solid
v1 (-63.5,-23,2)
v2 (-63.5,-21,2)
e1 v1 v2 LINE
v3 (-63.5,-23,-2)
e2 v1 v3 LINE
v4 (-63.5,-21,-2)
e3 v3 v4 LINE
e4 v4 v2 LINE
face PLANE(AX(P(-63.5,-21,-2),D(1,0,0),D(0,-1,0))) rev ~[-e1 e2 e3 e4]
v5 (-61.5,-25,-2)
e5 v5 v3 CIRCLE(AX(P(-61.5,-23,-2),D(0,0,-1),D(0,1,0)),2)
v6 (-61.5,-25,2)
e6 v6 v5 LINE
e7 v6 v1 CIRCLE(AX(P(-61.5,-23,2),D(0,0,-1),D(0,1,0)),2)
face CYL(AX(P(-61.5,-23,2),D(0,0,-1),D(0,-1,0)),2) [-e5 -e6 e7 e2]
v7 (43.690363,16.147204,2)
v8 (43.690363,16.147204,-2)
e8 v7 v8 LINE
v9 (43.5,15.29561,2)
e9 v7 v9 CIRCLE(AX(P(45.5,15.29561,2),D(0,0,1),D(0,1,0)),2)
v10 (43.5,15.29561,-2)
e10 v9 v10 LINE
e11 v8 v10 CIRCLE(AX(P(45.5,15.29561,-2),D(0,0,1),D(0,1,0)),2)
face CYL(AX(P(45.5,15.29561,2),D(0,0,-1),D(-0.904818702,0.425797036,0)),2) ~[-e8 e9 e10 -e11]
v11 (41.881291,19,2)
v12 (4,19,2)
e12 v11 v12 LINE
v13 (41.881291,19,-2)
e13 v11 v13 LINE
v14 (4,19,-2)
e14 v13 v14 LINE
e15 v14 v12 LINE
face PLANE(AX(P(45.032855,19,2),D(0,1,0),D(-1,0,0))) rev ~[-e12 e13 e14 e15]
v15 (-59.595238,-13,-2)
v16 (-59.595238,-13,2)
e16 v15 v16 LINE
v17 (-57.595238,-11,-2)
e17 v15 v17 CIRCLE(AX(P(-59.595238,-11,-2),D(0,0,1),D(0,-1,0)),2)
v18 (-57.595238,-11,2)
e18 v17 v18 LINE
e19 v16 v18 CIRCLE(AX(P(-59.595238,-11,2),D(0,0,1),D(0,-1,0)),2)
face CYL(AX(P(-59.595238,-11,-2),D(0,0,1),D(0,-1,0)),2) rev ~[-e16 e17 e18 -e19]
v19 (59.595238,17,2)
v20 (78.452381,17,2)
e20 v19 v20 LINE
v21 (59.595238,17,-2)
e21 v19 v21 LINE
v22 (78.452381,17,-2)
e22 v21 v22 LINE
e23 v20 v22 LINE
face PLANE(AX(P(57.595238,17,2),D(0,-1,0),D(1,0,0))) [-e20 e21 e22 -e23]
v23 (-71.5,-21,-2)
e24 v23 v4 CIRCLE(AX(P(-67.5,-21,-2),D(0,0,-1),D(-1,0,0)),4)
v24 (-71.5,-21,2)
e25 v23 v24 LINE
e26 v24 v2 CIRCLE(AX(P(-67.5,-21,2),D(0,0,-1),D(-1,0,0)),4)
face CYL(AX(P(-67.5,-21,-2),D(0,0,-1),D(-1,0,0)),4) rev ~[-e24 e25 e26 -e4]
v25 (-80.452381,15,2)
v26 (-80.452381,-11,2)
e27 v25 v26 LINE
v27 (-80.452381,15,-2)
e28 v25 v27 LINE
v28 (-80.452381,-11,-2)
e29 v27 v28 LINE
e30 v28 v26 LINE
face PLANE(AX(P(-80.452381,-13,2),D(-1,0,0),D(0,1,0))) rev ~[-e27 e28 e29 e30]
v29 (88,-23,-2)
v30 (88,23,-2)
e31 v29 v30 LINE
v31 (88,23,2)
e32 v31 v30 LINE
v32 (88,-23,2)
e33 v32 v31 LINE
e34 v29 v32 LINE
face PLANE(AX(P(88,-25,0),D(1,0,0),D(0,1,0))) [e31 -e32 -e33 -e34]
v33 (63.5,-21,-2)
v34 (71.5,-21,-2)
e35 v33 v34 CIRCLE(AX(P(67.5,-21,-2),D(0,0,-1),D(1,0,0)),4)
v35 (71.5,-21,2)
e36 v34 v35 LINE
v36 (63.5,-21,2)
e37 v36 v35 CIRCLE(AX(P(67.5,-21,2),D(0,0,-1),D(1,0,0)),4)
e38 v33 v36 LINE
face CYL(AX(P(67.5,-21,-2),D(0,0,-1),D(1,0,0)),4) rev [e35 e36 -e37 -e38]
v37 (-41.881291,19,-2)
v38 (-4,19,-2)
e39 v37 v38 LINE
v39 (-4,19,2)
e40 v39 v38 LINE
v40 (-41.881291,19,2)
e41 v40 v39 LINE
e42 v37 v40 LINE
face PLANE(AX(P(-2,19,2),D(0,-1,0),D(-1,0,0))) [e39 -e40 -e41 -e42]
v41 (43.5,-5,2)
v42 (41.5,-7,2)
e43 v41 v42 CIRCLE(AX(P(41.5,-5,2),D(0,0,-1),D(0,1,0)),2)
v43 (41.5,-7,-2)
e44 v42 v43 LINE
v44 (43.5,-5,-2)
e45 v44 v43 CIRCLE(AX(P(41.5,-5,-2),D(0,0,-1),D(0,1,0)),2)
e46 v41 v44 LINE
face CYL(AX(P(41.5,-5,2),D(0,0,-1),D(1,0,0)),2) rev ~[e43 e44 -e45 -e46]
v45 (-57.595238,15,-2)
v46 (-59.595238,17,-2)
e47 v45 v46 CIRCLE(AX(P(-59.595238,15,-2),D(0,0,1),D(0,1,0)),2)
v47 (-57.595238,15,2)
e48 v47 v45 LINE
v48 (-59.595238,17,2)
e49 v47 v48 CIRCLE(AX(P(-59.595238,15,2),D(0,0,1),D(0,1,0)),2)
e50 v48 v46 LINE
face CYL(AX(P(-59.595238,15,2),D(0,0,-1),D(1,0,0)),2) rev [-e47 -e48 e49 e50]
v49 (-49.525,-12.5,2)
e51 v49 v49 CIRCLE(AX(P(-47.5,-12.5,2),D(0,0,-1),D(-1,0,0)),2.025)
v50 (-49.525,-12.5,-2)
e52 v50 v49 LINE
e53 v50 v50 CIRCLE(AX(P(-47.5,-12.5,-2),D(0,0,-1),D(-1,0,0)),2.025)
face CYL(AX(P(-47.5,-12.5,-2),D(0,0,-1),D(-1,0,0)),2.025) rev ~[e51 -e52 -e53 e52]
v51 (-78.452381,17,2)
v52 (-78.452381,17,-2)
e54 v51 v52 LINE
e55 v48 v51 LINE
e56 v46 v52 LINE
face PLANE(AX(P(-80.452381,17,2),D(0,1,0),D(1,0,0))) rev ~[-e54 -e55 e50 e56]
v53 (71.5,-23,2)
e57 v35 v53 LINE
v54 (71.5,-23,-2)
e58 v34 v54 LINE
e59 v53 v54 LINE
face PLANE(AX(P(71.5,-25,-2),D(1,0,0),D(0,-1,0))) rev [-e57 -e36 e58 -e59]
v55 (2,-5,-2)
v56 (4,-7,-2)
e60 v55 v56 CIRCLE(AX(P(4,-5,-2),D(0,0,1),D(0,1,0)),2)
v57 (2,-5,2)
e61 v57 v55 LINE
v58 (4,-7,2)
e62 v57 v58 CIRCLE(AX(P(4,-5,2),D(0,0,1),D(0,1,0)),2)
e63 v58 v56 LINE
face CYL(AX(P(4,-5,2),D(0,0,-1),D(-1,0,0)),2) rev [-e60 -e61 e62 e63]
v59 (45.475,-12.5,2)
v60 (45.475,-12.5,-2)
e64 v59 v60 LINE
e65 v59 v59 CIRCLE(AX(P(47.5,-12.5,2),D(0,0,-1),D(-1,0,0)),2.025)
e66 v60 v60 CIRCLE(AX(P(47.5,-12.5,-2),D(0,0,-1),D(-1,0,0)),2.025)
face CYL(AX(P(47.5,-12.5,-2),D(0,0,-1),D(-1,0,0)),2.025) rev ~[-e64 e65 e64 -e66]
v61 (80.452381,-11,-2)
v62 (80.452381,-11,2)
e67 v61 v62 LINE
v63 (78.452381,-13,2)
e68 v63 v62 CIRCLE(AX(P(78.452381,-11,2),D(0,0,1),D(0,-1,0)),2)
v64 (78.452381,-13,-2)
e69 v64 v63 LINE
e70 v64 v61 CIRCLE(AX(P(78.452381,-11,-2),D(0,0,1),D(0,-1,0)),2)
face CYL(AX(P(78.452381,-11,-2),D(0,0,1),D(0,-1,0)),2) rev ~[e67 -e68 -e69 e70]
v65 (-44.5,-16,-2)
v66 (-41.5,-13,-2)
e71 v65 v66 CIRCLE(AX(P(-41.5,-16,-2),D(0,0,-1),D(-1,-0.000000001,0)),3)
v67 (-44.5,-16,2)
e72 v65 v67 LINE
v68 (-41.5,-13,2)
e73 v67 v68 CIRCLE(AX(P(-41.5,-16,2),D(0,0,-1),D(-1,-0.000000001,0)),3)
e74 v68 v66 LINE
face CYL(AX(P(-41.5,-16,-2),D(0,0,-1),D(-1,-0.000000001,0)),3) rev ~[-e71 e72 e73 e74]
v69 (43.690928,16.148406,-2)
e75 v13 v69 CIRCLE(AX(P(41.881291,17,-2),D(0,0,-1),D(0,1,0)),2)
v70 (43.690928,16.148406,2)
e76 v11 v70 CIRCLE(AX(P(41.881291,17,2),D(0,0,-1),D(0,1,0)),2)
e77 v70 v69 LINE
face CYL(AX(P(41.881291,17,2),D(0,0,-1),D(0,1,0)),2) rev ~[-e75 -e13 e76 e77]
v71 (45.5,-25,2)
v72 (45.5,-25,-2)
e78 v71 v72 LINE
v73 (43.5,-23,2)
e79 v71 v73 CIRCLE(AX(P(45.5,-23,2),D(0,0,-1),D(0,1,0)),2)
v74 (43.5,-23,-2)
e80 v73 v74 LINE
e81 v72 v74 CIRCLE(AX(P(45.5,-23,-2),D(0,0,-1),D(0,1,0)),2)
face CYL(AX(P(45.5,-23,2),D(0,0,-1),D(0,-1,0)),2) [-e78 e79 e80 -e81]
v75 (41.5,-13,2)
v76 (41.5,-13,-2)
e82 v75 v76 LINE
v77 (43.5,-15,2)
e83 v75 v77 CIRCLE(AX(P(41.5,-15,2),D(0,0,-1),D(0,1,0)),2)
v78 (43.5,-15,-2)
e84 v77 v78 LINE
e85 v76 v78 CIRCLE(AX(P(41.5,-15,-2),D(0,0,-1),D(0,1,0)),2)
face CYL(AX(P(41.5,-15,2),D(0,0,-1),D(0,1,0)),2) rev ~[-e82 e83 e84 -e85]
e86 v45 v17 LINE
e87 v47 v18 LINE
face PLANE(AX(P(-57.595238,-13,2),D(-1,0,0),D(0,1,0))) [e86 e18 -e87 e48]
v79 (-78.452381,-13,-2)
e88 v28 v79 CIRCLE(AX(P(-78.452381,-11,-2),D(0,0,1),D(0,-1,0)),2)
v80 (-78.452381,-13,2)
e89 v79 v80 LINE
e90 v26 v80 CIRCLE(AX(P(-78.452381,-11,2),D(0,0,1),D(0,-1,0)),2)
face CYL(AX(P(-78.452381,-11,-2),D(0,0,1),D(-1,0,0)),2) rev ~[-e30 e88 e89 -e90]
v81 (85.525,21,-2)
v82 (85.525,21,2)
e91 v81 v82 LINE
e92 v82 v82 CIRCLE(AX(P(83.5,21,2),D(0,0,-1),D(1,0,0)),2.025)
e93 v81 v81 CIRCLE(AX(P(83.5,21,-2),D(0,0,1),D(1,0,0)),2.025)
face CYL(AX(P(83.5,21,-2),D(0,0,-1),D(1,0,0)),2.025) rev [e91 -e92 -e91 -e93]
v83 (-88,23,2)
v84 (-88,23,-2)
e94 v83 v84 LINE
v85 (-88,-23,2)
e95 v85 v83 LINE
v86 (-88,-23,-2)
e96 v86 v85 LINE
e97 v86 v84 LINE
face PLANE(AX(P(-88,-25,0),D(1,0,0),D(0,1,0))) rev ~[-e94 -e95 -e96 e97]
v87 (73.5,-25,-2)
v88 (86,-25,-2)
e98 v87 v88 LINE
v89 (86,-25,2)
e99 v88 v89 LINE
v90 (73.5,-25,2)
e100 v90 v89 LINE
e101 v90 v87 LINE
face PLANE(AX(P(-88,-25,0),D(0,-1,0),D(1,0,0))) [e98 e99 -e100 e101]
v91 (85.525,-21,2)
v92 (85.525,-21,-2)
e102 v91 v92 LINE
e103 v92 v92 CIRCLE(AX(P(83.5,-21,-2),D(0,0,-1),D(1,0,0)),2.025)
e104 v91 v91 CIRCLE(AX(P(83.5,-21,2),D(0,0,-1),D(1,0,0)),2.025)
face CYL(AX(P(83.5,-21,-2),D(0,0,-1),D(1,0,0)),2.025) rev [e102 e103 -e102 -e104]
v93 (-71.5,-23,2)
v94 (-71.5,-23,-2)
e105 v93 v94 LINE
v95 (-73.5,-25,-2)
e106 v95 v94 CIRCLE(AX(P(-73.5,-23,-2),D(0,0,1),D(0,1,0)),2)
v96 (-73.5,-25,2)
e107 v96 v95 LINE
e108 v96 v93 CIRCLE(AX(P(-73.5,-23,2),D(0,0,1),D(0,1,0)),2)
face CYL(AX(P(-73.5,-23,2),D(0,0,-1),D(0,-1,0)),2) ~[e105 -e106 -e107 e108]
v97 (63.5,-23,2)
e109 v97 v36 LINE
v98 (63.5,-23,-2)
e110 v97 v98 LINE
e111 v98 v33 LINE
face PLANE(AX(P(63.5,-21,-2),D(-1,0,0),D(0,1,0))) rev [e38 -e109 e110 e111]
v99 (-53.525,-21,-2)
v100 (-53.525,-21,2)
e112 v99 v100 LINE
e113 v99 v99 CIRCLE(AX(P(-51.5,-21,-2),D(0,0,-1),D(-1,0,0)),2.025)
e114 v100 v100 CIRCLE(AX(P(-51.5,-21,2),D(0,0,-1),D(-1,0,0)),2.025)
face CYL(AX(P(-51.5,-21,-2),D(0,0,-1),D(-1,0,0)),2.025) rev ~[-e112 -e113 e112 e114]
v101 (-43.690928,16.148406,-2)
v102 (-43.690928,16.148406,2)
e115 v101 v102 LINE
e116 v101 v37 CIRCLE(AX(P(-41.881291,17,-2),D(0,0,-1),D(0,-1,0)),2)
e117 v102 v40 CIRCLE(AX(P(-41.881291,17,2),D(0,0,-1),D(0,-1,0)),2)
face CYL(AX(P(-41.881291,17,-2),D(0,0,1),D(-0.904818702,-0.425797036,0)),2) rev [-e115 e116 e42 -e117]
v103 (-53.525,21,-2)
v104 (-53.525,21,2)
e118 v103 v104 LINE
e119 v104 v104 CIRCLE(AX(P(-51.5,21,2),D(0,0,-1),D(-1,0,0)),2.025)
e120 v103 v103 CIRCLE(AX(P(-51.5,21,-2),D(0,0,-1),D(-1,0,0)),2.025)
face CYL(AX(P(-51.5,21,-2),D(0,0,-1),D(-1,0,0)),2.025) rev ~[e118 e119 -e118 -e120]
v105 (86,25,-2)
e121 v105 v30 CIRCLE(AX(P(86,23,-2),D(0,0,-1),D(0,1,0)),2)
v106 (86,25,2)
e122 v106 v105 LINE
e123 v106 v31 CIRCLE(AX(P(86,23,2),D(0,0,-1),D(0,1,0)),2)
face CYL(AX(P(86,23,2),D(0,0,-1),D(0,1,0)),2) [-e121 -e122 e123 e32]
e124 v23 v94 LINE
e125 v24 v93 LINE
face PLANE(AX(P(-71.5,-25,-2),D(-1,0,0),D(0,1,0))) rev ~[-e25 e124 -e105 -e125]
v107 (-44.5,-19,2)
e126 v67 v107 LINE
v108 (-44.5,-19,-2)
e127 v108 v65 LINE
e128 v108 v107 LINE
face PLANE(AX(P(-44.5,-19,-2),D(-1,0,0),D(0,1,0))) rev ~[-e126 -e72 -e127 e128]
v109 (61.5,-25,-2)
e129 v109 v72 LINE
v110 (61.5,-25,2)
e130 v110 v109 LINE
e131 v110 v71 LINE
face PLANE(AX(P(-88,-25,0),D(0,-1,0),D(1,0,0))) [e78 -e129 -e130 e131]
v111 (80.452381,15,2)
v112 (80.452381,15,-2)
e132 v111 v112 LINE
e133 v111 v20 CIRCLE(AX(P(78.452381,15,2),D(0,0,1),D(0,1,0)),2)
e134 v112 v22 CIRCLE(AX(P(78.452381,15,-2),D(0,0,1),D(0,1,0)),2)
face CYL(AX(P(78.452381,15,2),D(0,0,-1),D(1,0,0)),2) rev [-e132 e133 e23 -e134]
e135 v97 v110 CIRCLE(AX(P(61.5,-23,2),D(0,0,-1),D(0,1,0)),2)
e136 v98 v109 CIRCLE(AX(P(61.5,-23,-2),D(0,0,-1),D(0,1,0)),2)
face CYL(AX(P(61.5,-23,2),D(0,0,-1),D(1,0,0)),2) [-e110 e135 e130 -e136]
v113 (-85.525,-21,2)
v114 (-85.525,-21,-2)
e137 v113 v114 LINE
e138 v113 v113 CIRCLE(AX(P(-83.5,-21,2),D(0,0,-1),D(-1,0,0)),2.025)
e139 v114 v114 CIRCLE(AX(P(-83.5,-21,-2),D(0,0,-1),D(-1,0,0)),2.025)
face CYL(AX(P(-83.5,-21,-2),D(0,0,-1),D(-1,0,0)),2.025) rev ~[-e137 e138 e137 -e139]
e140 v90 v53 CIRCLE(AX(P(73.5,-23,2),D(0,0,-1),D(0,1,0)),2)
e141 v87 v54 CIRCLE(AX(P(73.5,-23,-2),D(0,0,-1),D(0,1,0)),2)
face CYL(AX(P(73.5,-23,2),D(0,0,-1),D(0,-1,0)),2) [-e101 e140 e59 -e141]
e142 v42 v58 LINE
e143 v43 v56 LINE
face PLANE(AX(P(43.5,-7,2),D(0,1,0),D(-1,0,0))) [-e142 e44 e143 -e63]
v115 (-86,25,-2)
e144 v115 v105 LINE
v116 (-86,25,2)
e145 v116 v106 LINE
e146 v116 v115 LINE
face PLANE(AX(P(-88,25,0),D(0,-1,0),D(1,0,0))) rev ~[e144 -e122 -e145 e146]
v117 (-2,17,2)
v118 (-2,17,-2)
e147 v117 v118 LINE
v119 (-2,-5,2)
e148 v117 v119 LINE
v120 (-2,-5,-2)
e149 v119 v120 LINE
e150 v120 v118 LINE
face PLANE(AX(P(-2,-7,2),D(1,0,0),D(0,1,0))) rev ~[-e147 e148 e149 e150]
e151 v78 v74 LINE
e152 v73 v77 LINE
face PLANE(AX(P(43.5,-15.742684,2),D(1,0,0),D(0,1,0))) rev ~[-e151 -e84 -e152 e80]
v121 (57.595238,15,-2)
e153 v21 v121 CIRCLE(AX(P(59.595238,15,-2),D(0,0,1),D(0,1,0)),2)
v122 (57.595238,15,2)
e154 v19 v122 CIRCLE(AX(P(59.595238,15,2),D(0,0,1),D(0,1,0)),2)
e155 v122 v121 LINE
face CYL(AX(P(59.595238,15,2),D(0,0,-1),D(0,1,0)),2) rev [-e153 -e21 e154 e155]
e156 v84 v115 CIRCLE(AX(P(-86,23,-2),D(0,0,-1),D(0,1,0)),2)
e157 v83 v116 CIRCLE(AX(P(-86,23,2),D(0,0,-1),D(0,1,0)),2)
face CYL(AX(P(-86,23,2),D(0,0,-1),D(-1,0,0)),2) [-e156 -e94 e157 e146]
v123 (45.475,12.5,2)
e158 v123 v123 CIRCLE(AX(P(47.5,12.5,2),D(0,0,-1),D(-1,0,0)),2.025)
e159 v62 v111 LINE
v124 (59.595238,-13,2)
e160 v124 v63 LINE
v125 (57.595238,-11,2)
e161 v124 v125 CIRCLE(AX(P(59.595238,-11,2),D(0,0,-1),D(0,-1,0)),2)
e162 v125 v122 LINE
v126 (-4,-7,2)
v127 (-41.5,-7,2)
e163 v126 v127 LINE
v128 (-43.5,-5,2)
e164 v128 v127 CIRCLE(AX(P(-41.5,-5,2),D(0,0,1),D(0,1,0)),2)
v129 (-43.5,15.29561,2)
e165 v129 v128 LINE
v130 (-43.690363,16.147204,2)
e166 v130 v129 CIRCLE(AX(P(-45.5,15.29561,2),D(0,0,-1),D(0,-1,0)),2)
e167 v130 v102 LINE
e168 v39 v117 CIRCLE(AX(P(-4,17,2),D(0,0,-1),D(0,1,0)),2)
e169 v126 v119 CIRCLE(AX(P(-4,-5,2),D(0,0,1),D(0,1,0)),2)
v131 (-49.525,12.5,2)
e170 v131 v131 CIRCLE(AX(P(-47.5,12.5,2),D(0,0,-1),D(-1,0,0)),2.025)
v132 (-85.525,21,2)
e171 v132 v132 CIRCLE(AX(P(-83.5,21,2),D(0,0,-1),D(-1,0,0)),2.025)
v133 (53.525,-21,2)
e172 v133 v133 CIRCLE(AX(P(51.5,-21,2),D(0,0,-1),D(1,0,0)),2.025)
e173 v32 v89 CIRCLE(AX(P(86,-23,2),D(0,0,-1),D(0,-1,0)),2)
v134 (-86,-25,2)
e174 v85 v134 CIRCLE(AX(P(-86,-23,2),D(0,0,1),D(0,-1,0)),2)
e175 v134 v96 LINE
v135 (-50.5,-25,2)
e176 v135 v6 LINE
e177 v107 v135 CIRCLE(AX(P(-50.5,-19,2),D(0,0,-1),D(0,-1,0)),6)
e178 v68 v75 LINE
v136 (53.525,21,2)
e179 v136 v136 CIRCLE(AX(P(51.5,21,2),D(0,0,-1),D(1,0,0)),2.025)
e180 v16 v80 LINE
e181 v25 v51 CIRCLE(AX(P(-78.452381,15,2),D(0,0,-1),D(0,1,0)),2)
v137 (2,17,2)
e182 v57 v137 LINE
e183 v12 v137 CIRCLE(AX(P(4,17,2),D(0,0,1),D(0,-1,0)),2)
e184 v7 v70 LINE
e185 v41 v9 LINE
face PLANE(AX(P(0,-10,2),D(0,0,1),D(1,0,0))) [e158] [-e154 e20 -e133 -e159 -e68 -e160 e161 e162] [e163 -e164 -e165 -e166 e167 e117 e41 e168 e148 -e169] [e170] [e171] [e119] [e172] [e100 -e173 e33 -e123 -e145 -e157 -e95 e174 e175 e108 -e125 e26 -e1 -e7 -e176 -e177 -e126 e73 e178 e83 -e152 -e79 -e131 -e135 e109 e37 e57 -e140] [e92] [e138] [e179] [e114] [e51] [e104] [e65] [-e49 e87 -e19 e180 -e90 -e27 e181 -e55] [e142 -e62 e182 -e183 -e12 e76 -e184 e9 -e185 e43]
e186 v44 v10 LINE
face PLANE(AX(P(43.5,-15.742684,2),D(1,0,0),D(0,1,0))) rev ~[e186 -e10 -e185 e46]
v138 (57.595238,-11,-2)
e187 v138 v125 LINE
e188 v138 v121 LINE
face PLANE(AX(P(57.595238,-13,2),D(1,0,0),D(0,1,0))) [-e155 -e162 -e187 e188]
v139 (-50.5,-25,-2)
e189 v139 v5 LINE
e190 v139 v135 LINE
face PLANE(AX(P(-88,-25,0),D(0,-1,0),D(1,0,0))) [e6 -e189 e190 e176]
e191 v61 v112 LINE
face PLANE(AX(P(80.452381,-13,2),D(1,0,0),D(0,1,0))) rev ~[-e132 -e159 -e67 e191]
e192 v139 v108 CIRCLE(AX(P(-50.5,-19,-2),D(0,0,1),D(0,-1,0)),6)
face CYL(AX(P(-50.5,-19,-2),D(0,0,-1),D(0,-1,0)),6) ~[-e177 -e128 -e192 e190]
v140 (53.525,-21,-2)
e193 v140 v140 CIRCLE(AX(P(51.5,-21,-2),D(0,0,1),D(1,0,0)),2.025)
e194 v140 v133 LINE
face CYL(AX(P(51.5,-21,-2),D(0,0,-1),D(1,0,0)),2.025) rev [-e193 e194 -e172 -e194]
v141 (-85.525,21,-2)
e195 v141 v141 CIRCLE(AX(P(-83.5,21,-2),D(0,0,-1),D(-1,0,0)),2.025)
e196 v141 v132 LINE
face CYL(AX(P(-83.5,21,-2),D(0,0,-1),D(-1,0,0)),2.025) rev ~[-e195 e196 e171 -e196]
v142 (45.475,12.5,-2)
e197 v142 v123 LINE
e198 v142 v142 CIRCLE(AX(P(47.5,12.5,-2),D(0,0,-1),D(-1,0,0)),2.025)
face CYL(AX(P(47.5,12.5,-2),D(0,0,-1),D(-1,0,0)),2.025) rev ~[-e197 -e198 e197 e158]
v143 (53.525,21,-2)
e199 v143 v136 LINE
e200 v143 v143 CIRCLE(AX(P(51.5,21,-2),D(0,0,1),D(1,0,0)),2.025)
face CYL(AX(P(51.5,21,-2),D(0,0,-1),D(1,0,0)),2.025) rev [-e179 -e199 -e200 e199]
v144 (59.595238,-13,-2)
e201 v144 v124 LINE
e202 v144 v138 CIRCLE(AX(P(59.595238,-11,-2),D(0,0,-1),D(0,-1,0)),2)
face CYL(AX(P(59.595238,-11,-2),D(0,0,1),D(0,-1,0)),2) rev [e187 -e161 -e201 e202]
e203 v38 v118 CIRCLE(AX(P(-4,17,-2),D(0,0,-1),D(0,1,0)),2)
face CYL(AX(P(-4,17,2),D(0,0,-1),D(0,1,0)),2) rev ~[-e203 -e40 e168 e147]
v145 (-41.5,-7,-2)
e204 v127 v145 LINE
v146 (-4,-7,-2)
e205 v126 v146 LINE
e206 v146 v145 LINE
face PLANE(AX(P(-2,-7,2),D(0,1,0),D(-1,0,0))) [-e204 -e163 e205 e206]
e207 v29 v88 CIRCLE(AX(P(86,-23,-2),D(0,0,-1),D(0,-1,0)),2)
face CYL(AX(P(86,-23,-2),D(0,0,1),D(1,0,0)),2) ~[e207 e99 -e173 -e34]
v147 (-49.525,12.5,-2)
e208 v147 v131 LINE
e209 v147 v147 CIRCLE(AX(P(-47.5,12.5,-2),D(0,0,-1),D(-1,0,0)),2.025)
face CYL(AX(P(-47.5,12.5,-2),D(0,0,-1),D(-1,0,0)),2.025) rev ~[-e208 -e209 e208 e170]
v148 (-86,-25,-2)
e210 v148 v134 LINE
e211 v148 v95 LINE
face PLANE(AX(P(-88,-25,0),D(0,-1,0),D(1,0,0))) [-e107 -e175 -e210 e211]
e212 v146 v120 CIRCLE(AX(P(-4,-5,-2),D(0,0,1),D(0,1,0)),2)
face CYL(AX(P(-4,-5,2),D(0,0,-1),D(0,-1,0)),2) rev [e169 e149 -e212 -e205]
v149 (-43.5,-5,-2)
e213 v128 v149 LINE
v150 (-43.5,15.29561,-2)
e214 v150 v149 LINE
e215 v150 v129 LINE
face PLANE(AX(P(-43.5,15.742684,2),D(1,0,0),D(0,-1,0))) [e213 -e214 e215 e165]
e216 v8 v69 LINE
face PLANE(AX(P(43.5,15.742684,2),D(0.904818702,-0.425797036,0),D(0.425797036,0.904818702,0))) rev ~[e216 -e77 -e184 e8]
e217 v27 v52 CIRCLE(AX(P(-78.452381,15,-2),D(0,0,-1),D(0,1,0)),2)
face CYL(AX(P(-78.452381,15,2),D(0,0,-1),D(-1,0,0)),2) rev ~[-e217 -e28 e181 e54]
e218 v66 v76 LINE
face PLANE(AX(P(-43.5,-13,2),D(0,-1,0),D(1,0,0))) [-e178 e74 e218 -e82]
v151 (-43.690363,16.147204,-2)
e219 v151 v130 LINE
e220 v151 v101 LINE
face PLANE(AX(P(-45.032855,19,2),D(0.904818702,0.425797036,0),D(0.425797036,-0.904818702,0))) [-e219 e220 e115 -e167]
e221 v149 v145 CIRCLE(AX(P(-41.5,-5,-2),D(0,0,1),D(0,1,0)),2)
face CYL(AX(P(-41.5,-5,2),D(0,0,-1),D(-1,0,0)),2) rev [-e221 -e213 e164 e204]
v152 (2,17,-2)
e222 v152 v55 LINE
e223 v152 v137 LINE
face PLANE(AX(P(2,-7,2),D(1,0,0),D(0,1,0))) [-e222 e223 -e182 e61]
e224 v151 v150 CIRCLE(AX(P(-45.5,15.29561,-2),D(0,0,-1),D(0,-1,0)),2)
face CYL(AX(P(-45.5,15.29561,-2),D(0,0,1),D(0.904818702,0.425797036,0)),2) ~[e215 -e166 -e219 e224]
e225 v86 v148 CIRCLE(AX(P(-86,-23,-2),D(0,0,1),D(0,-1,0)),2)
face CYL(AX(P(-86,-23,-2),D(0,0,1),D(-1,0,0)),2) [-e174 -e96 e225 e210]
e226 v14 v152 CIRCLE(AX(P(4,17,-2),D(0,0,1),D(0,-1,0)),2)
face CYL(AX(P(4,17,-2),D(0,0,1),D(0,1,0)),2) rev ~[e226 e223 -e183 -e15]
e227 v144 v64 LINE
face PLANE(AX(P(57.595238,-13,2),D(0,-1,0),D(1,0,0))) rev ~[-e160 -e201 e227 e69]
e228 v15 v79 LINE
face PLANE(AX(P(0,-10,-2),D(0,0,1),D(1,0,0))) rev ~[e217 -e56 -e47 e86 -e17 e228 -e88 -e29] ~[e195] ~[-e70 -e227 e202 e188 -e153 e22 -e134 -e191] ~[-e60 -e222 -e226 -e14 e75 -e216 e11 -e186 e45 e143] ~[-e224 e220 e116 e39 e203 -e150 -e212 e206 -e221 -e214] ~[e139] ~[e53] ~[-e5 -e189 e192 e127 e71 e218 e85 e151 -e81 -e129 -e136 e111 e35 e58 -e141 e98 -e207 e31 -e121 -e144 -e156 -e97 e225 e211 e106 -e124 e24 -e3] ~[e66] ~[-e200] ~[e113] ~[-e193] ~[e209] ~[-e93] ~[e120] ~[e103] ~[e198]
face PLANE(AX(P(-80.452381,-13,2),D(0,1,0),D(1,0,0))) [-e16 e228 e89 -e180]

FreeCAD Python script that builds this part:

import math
import FreeCAD as App
import Part
import Sketcher
from FreeCAD import Vector


def edges_at(feature, points):
    """Names of the edges that pass closest to the given points."""
    edges = feature.Shape.Edges
    near = lambda p: min(range(len(edges)), key=lambda i: edges[i].distToShape(Part.Vertex(*p))[0])
    return sorted({f"Edge{near(p) + 1}" for p in points})


def add_polygon(sketch, points):
    """Adds a closed chain of lines whose ends are joined by coincident constraints."""
    first, n = sketch.GeometryCount, len(points)
    for a, b in zip(points, points[1:] + points[:1]):
        sketch.addGeometry(Part.LineSegment(App.Vector(*a, 0), App.Vector(*b, 0)), False)
    for i in range(n):
        sketch.addConstraint(Sketcher.Constraint("Coincident", first + i, 2, first + (i + 1) % n, 1))

doc = App.newDocument("Part")
body = doc.addObject("PartDesign::Body", "Body")

# Sketch on XY plane
sketch1 = body.newObject("Sketcher::SketchObject", "Sketch")
sketch1.AttachmentSupport = (doc.getObject("XY_Plane"), [""])
sketch1.MapMode = "FlatFace"
add_polygon(sketch1, [(-88, 25), (-88, -25), (88, -25), (88, 25)])  # lines 0-3
sketch1.addConstraint([
    Sketcher.Constraint("Vertical", 0),
    Sketcher.Constraint("Horizontal", 1),
    Sketcher.Constraint("Vertical", 2),
    Sketcher.Constraint("Horizontal", 3),
    Sketcher.Constraint("Symmetric", 0, 2, 2, 2, -1, 1),
    Sketcher.Constraint("DistanceX", 1, 1, 1, 2, 176.0),
    Sketcher.Constraint("DistanceY", 0, 2, 0, 1, 50.0),
])
pad1 = body.newObject("PartDesign::Pad", "Pad")
pad1.Profile = sketch1
pad1.Length = 4
pad1.Midplane = True

# Sketch on XY plane
sketch2 = body.newObject("Sketcher::SketchObject", "Sketch001")
sketch2.AttachmentSupport = (doc.getObject("XY_Plane"), [""])
sketch2.MapMode = "FlatFace"
sketch2.AttachmentOffset = App.Placement(Vector(0, 0, -2), App.Rotation())
sketch2.addGeometry([
    Part.Circle(Vector(-51.5, 21, 0), Vector(0, 0, 1), 2),
    Part.Circle(Vector(-51.5, -21, 0), Vector(0, 0, 1), 2),
    Part.Circle(Vector(-83.5, 21, 0), Vector(0, 0, 1), 2),
    Part.Circle(Vector(-83.5, -21, 0), Vector(0, 0, 1), 2),
], False)
sketch2.addConstraint([
    Sketcher.Constraint("Equal", 0, 1),
    Sketcher.Constraint("Equal", 1, 2),
    Sketcher.Constraint("Equal", 2, 3),
    Sketcher.Constraint("Symmetric", 0, 3, 1, 3, -1),
    Sketcher.Constraint("Symmetric", 2, 3, 3, 3, -1),
    Sketcher.Constraint("Horizontal", 0, 3, 2, 3),
    Sketcher.Constraint("Diameter", 0, 4.05),
    Sketcher.Constraint("DistanceY", -1, 1, 0, 3, 21.0),
    Sketcher.Constraint("DistanceX", 2, 3, 0, 3, 32.0),
    Sketcher.Constraint("DistanceX", 0, 3, -1, 1, 51.5),
])
pocket1 = body.newObject("PartDesign::Pocket", "Pocket")
pocket1.Profile = sketch2
pocket1.Length = 44
pocket1.Midplane = True
doc.recompute()

mirrored = body.newObject("PartDesign::Mirrored", "Mirrored")
mirrored.Originals = [pocket1]
mirrored.MirrorPlane = (doc.getObject("YZ_Plane"), [""])
body.Tip = mirrored

# Sketch on XY plane
sketch3 = body.newObject("Sketcher::SketchObject", "Sketch002")
sketch3.AttachmentSupport = (doc.getObject("XY_Plane"), [""])
sketch3.MapMode = "FlatFace"
sketch3.AttachmentOffset = App.Placement(Vector(0, 0, -2), App.Rotation())
sketch3.addGeometry([
    Part.LineSegment(Vector(-63.5, -21, 0), Vector(-63.5, -25, 0)),
    Part.LineSegment(Vector(-63.5, -25, 0), Vector(-71.5, -25, 0)),
    Part.LineSegment(Vector(-71.5, -25, 0), Vector(-71.5, -21, 0)),
    Part.ArcOfCircle(Part.Circle(Vector(-67.5, -21, 0), Vector(0, 0, 1), 4), math.radians(0), math.radians(180)),
], False)
sketch3.addConstraint([
    Sketcher.Constraint("Coincident", 0, 2, 1, 1),
    Sketcher.Constraint("Coincident", 1, 2, 2, 1),
    Sketcher.Constraint("Tangent", 2, 2, 3, 2),
    Sketcher.Constraint("Tangent", 3, 1, 0, 1),
    Sketcher.Constraint("Vertical", 0),
    Sketcher.Constraint("Horizontal", 1),
    Sketcher.Constraint("Vertical", 2),
    Sketcher.Constraint("Radius", 3, 4.0),
    Sketcher.Constraint("DistanceY", 0, 2, 0, 1, 4.0),
    Sketcher.Constraint("DistanceY", 3, 3, -1, 1, 21.0),
    Sketcher.Constraint("DistanceX", 3, 3, -1, 1, 67.5),
])
pocket2 = body.newObject("PartDesign::Pocket", "Pocket001")
pocket2.Profile = sketch3
pocket2.Length = 34
pocket2.Midplane = True
doc.recompute()

mirrored2 = body.newObject("PartDesign::Mirrored", "Mirrored001")
mirrored2.Originals = [pocket2]
mirrored2.MirrorPlane = (doc.getObject("YZ_Plane"), [""])
body.Tip = mirrored2
doc.recompute()

fillet = body.newObject("PartDesign::Fillet", "Fillet")
fillet.Base = (mirrored2, edges_at(mirrored2, [
    (-71.5, -25, 0),
    (-63.5, -25, 0),
    (88, -25, 0),
    (-88, -25, 0),
    (-88, 25, 0),
    (88, 25, 0),
    (63.5, -25, 0),
    (71.5, -25, 0),
]))
fillet.Radius = 2

# Sketch on XY plane
sketch4 = body.newObject("Sketcher::SketchObject", "Sketch003")
sketch4.AttachmentSupport = (doc.getObject("XY_Plane"), [""])
sketch4.MapMode = "FlatFace"
sketch4.AttachmentOffset = App.Placement(Vector(0, 0, -2), App.Rotation())
sketch4.addGeometry([
    Part.Circle(Vector(-47.5, -12.5, 0), Vector(0, 0, 1), 2),
    Part.Circle(Vector(-47.5, 12.5, 0), Vector(0, 0, 1), 2),
    Part.Circle(Vector(47.5, 12.5, 0), Vector(0, 0, 1), 2),
    Part.Circle(Vector(47.5, -12.5, 0), Vector(0, 0, 1), 2),
], False)
sketch4.addConstraint([
    Sketcher.Constraint("Equal", 0, 1),
    Sketcher.Constraint("Equal", 1, 2),
    Sketcher.Constraint("Equal", 2, 3),
    Sketcher.Constraint("Symmetric", 0, 3, 2, 3, -1, 1),
    Sketcher.Constraint("Symmetric", 1, 3, 3, 3, -1, 1),
    Sketcher.Constraint("Symmetric", 1, 3, 2, 3, -2),
    Sketcher.Constraint("Diameter", 0, 4.05),
    Sketcher.Constraint("DistanceY", 0, 3, 1, 3, 25.0),
    Sketcher.Constraint("DistanceX", 1, 3, 2, 3, 95.0),
])
pocket3 = body.newObject("PartDesign::Pocket", "Pocket002")
pocket3.Profile = sketch4
pocket3.Length = 10
pocket3.Midplane = True

# Sketch on XY plane
sketch5 = body.newObject("Sketcher::SketchObject", "Sketch004")
sketch5.AttachmentSupport = (doc.getObject("XY_Plane"), [""])
sketch5.MapMode = "FlatFace"
sketch5.AttachmentOffset = App.Placement(Vector(0, 0, 2), App.Rotation())
add_polygon(sketch5, [(-2, 19), (-45, 19), (-43.5, 15.7), (-43.5, -15.7), (-45, -19), (-2, -19)])  # lines 0-5
add_polygon(sketch5, [(45, 19), (2, 19), (2, -19), (45, -19), (43.5, -15.7), (43.5, 15.7)])  # lines 6-11
sketch5.addConstraint([
    Sketcher.Constraint("Horizontal", 0),
    Sketcher.Constraint("Vertical", 2),
    Sketcher.Constraint("Horizontal", 4),
    Sketcher.Constraint("Vertical", 5),
    Sketcher.Constraint("Horizontal", 6),
    Sketcher.Constraint("Vertical", 7),
    Sketcher.Constraint("Horizontal", 8),
    Sketcher.Constraint("Vertical", 10),
    Sketcher.Constraint("Symmetric", 4, 2, 6, 2, -1, 1),
    Sketcher.Constraint("Symmetric", 0, 2, 8, 2, -1, 1),
    Sketcher.Constraint("Symmetric", 1, 2, 9, 2, -1, 1),
    Sketcher.Constraint("Symmetric", 3, 2, 8, 2, -2),
    Sketcher.Constraint("Parallel", 3, 11),
    Sketcher.Constraint("Horizontal", 2, 2, 9, 2),
    Sketcher.Constraint("Horizontal", 1, 2, 10, 2),
    Sketcher.Constraint("DistanceY", 5, 1, 5, 2, 38.0),
    Sketcher.Constraint("DistanceX", 4, 2, -1, 1, 2.0),
    Sketcher.Constraint("DistanceX", 1, 2, -1, 1, 43.5),
    Sketcher.Constraint("DistanceX", 0, 2, 0, 1, 43.032855),
    Sketcher.Constraint("DistanceY", 2, 2, 2, 1, 31.485368),
])
pocket4 = body.newObject("PartDesign::Pocket", "Pocket003")
pocket4.Profile = sketch5
pocket4.Length = 31
pocket4.Midplane = True

# Sketch on XY plane
sketch6 = body.newObject("Sketcher::SketchObject", "Sketch005")
sketch6.AttachmentSupport = (doc.getObject("XY_Plane"), [""])
sketch6.MapMode = "FlatFace"
sketch6.AttachmentOffset = App.Placement(Vector(0, 0, 2), App.Rotation())
add_polygon(sketch6, [(-80, 17), (-80, -13), (-58, -13), (-58, 17)])  # lines 0-3
add_polygon(sketch6, [(58, 17), (58, -13), (80, -13), (80, 17)])  # lines 4-7
sketch6.addConstraint([
    Sketcher.Constraint("Vertical", 0),
    Sketcher.Constraint("Horizontal", 1),
    Sketcher.Constraint("Vertical", 2),
    Sketcher.Constraint("Horizontal", 3),
    Sketcher.Constraint("Vertical", 4),
    Sketcher.Constraint("Horizontal", 5),
    Sketcher.Constraint("Vertical", 6),
    Sketcher.Constraint("Horizontal", 7),
    Sketcher.Constraint("Symmetric", 1, 2, 4, 2, -2),
    Sketcher.Constraint("Symmetric", 3, 2, 6, 2, -2),
    Sketcher.Constraint("DistanceY", 0, 2, 0, 1, 30.0),
    Sketcher.Constraint("DistanceY", 0, 2, -1, 1, 13.0),
    Sketcher.Constraint("DistanceX", 1, 1, 1, 2, 22.857143),
    Sketcher.Constraint("DistanceX", 0, 2, -1, 1, 80.452381),
])
pocket5 = body.newObject("PartDesign::Pocket", "Pocket004")
pocket5.Profile = sketch6
pocket5.Length = 31
pocket5.Midplane = True
doc.recompute()

fillet2 = body.newObject("PartDesign::Fillet", "Fillet001")
fillet2.Base = (pocket5, edges_at(pocket5, [
    (-2, 19, 0),
    (-2, -19, 0),
    (-45.033, -19, 0),
    (-43.5, -15.743, 0),
    (-43.5, 15.743, 0),
    (-45.033, 19, 0),
    (2, 19, 0),
    (45.033, 19, 0),
    (43.5, 15.743, 0),
    (43.5, -15.743, 0),
    (45.033, -19, 0),
    (2, -19, 0),
    (-80.452, -13, 0),
    (-80.452, 17, 0),
    (-57.595, 17, 0),
    (-57.595, -13, 0),
    (80.452, 17, 0),
    (80.452, -13, 0),
    (57.595, -13, 0),
    (57.595, 17, 0),
]))
fillet2.Radius = 2

# Sketch on XY plane
sketch7 = body.newObject("Sketcher::SketchObject", "Sketch006")
sketch7.AttachmentSupport = (doc.getObject("XY_Plane"), [""])
sketch7.MapMode = "FlatFace"
sketch7.AttachmentOffset = App.Placement(Vector(0, 0, -2), App.Rotation())
add_polygon(sketch7, [(27, -2), (27, -25), (-27, -25), (-27, -2)])  # lines 0-3
sketch7.addConstraint([
    Sketcher.Constraint("Vertical", 0),
    Sketcher.Constraint("Horizontal", 1),
    Sketcher.Constraint("Vertical", 2),
    Sketcher.Constraint("Horizontal", 3),
    Sketcher.Constraint("DistanceX", 1, 2, 1, 1, 54.0),
    Sketcher.Constraint("DistanceY", 0, 2, 0, 1, 23.0),
    Sketcher.Constraint("DistanceX", -1, 1, 0, 2, 27.0),
    Sketcher.Constraint("DistanceY", 0, 2, -1, 1, 25.0),
])
pocket6 = body.newObject("PartDesign::Pocket", "Pocket005")
pocket6.Profile = sketch7
pocket6.Length = 10
pocket6.Reversed = True

# Sketch on XY plane
sketch8 = body.newObject("Sketcher::SketchObject", "Sketch007")
sketch8.AttachmentSupport = (doc.getObject("XY_Plane"), [""])
sketch8.MapMode = "FlatFace"
sketch8.AttachmentOffset = App.Placement(Vector(0, 0, -2), App.Rotation())
add_polygon(sketch8, [(31, -25), (27, -25), (27, -2), (-27, -2), (-27, -25), (-31, -25), (-31, 2), (31, 2)])  # lines 0-7
sketch8.addConstraint([
    Sketcher.Constraint("Horizontal", 0),
    Sketcher.Constraint("Vertical", 1),
    Sketcher.Constraint("Horizontal", 2),
    Sketcher.Constraint("Vertical", 3),
    Sketcher.Constraint("Horizontal", 4),
    Sketcher.Constraint("Vertical", 5),
    Sketcher.Constraint("Horizontal", 6),
    Sketcher.Constraint("Vertical", 7),
    Sketcher.Constraint("Symmetric", 0, 2, 3, 2, -2),
    Sketcher.Constraint("Equal", 0, 4),
    Sketcher.Constraint("DistanceX", 0, 2, 0, 1, 4.0),
    Sketcher.Constraint("DistanceX", 2, 2, 2, 1, 54.0),
    Sketcher.Constraint("DistanceY", 1, 1, 1, 2, 23.0),
    Sketcher.Constraint("DistanceY", 5, 1, 5, 2, 27.0),
    Sketcher.Constraint("DistanceY", 0, 2, -1, 1, 25.0),
])
pad2 = body.newObject("PartDesign::Pad", "Pad001")
pad2.Profile = sketch8
pad2.Length = 4
doc.recompute()

chamfer = body.newObject("PartDesign::Chamfer", "Chamfer")
chamfer.Base = (pad2, edges_at(pad2, [(27, -2, 0), (-27, -2, 0)]))
chamfer.Size = 10
doc.recompute()

chamfer2 = body.newObject("PartDesign::Chamfer", "Chamfer001")
chamfer2.Base = (chamfer, edges_at(chamfer, [(31, 2, 0), (-31, 2, 0)]))
chamfer2.Size = 10
doc.recompute()

fillet3 = body.newObject("PartDesign::Fillet", "Fillet002")
fillet3.Base = (chamfer2, edges_at(chamfer2, [
    (-27, -25, 0),
    (27, -25, 0),
    (-31, -19, 0),
    (-2, 2, 0),
    (31, -19, 0),
    (2, 2, 0),
    (21, 2, 0),
    (31, -8, 0),
    (-31, -8, 0),
    (-21, 2, 0),
]))
fillet3.Radius = 2

# Sketch on XY plane
sketch9 = body.newObject("Sketcher::SketchObject", "Sketch008")
sketch9.AttachmentSupport = (doc.getObject("XY_Plane"), [""])
sketch9.MapMode = "FlatFace"
sketch9.AttachmentOffset = App.Placement(Vector(0, 0, 2), App.Rotation())
add_polygon(sketch9, [(-44, 5), (-44, -25), (44, -25), (44, 5)])  # lines 0-3
sketch9.addConstraint([
    Sketcher.Constraint("Vertical", 0),
    Sketcher.Constraint("Horizontal", 1),
    Sketcher.Constraint("Vertical", 2),
    Sketcher.Constraint("Horizontal", 3),
    Sketcher.Constraint("DistanceX", 1, 1, 1, 2, 87.0),
    Sketcher.Constraint("DistanceY", 0, 2, 0, 1, 30.0),
    Sketcher.Constraint("DistanceY", 0, 2, -1, 1, 25.0),
    Sketcher.Constraint("DistanceX", 0, 2, -1, 1, 43.5),
])
pocket7 = body.newObject("PartDesign::Pocket", "Pocket006")
pocket7.Profile = sketch9
pocket7.Length = 10

# Sketch on XY plane
sketch10 = body.newObject("Sketcher::SketchObject", "Sketch009")
sketch10.AttachmentSupport = (doc.getObject("XY_Plane"), [""])
sketch10.MapMode = "FlatFace"
sketch10.AttachmentOffset = App.Placement(Vector(0, 0, 2), App.Rotation())
add_polygon(sketch10, [(-43.5, -7), (-43.5, -13), (43.5, -13), (43.5, -7), (2, -7), (2, 5), (-2, 5), (-2, -7)])  # lines 0-7
sketch10.addGeometry(Part.LineSegment(Vector(-43.5, -18.1746, 0), Vector(-43.5, -15.2956, 0)), False)  # 8
sketch10.addGeometry(Part.ArcOfCircle(Part.Circle(Vector(-45.5, -15.2956, 0), Vector(0, 0, 1), 2), math.radians(-25), math.radians(0)), False)  # 9
sketch10.addGeometry(Part.LineSegment(Vector(-43.6904, -16.1472, 0), Vector(-43.6909, -16.1484, 0)), False)  # 10
sketch10.addGeometry(Part.ArcOfCircle(Part.Circle(Vector(-41.8813, -17, 0), Vector(0, 0, 1), 2), math.radians(155), math.radians(216)), False)  # 11
sketch10.addGeometry(Part.ArcOfCircle(Part.Circle(Vector(45.5, -15.2956, 0), Vector(0, 0, 1), 2), math.radians(180), math.radians(205)), False)  # 12
sketch10.addGeometry(Part.LineSegment(Vector(43.5, -15.2956, 0), Vector(43.5, -18.1746, 0)), False)  # 13
sketch10.addGeometry(Part.ArcOfCircle(Part.Circle(Vector(41.8813, -17, 0), Vector(0, 0, 1), 2), math.radians(-36), math.radians(25)), False)  # 14
sketch10.addGeometry(Part.LineSegment(Vector(43.6909, -16.1484, 0), Vector(43.6904, -16.1472, 0)), False)  # 15
sketch10.addConstraint([
    Sketcher.Constraint("Tangent", 8, 2, 9, 2),
    Sketcher.Constraint("Tangent", 9, 1, 10, 1),
    Sketcher.Constraint("Coincident", 10, 2, 11, 1),
    Sketcher.Constraint("Coincident", 11, 2, 8, 1),
    Sketcher.Constraint("Tangent", 12, 1, 13, 1),
    Sketcher.Constraint("Coincident", 13, 2, 14, 1),
    Sketcher.Constraint("Tangent", 14, 2, 15, 1),
    Sketcher.Constraint("Coincident", 15, 2, 12, 2),
    Sketcher.Constraint("Vertical", 0),
    Sketcher.Constraint("Horizontal", 1),
    Sketcher.Constraint("Vertical", 2),
    Sketcher.Constraint("Horizontal", 3),
    Sketcher.Constraint("Vertical", 4),
    Sketcher.Constraint("Horizontal", 5),
    Sketcher.Constraint("Vertical", 6),
    Sketcher.Constraint("Horizontal", 7),
    Sketcher.Constraint("Vertical", 8),
    Sketcher.Constraint("Vertical", 13),
    Sketcher.Constraint("Equal", 9, 11),
    Sketcher.Constraint("Equal", 11, 12),
    Sketcher.Constraint("Equal", 12, 14),
    Sketcher.Constraint("Symmetric", 9, 3, 12, 3, -2),
    Sketcher.Constraint("Symmetric", 3, 2, 6, 2, -2),
    Sketcher.Constraint("Horizontal", 11, 3, 14, 3),
    Sketcher.Constraint("Horizontal", 10, 2, 14, 2),
    Sketcher.Constraint("Horizontal", 9, 1, 15, 2),
    Sketcher.Constraint("Vertical", 7, 2, 8, 2),
    Sketcher.Constraint("Vertical", 2, 2, 12, 1),
    Sketcher.Constraint("Radius", 9, 2.0),
    Sketcher.Constraint("DistanceX", 1, 1, 1, 2, 87.0),
    Sketcher.Constraint("DistanceX", 5, 2, 5, 1, 4.0),
    Sketcher.Constraint("DistanceY", 0, 2, 0, 1, 6.0),
    Sketcher.Constraint("DistanceY", 4, 1, 4, 2, 12.0),
    Sketcher.Constraint("DistanceY", 11, 3, -1, 1, 17.0),
    Sketcher.Constraint("DistanceY", 0, 2, -1, 1, 13.0),
    Sketcher.Constraint("DistanceY", 8, 1, 8, 2, 2.87903),
    Sketcher.Constraint("DistanceY", 10, 2, 9, 1, 0.001202),
    Sketcher.Constraint("DistanceX", 10, 2, -1, 1, 43.690928),
])
pad3 = body.newObject("PartDesign::Pad", "Pad002")
pad3.Profile = sketch10
pad3.Length = 4
pad3.Reversed = True
doc.recompute()

fillet4 = body.newObject("PartDesign::Fillet", "Fillet003")
fillet4.Base = (pad3, edges_at(pad3, [
    (-43.5, -25, 0),
    (43.5, -25, 0),
    (43.5, -7, 0),
    (43.5, -13, 0),
    (-43.5, -13, 0),
    (-43.5, -7, 0),
    (-2, -7, 0),
    (2, -7, 0),
]))
fillet4.Radius = 2

# Sketch on XY plane
sketch11 = body.newObject("Sketcher::SketchObject", "Sketch010")
sketch11.AttachmentSupport = (doc.getObject("XY_Plane"), [""])
sketch11.MapMode = "FlatFace"
sketch11.AttachmentOffset = App.Placement(Vector(0, 0, -2), App.Rotation())
sketch11.addGeometry([
    Part.LineSegment(Vector(-44.5, -19, 0), Vector(-44.5, -16, 0)),  # 0
    Part.ArcOfCircle(Part.Circle(Vector(-41.5, -16, 0), Vector(0, 0, 1), 3), math.radians(90), math.radians(180)),  # 1
    Part.ArcOfCircle(Part.Circle(Vector(-41.5, -15, 0), Vector(0, 0, 1), 2), math.radians(90), math.radians(180)),  # 2
    Part.LineSegment(Vector(-43.5, -15, 0), Vector(-43.5, -23, 0)),  # 3
    Part.ArcOfCircle(Part.Circle(Vector(-45.5, -23, 0), Vector(0, 0, 1), 2), math.radians(-90), math.radians(0)),  # 4
    Part.LineSegment(Vector(-45.5, -25, 0), Vector(-50.5, -25, 0)),  # 5
    Part.ArcOfCircle(Part.Circle(Vector(-50.5, -19, 0), Vector(0, 0, 1), 6), math.radians(-90), math.radians(0)),  # 6
], False)
sketch11.addConstraint([
    Sketcher.Constraint("Tangent", 0, 2, 1, 2),
    Sketcher.Constraint("Tangent", 1, 1, 2, 1),
    Sketcher.Constraint("Tangent", 2, 2, 3, 1),
    Sketcher.Constraint("Tangent", 3, 2, 4, 2),
    Sketcher.Constraint("Tangent", 4, 1, 5, 1),
    Sketcher.Constraint("Tangent", 5, 2, 6, 1),
    Sketcher.Constraint("Tangent", 6, 2, 0, 1),
    Sketcher.Constraint("Vertical", 0),
    Sketcher.Constraint("Vertical", 3),
    Sketcher.Constraint("Horizontal", 5),
    Sketcher.Constraint("Equal", 2, 4),
    Sketcher.Constraint("Vertical", 1, 3, 2, 3),
    Sketcher.Constraint("Radius", 1, 3.0),
    Sketcher.Constraint("Radius", 2, 2.0),
    Sketcher.Constraint("Radius", 6, 6.0),
    Sketcher.Constraint("DistanceY", 0, 1, 0, 2, 3.0),
    Sketcher.Constraint("DistanceY", 1, 3, -1, 1, 16.0),
    Sketcher.Constraint("DistanceX", 1, 3, -1, 1, 41.5),
])
pocket8 = body.newObject("PartDesign::Pocket", "Pocket007")
pocket8.Profile = sketch11
pocket8.Length = 10
pocket8.Reversed = True

doc.recompute()
